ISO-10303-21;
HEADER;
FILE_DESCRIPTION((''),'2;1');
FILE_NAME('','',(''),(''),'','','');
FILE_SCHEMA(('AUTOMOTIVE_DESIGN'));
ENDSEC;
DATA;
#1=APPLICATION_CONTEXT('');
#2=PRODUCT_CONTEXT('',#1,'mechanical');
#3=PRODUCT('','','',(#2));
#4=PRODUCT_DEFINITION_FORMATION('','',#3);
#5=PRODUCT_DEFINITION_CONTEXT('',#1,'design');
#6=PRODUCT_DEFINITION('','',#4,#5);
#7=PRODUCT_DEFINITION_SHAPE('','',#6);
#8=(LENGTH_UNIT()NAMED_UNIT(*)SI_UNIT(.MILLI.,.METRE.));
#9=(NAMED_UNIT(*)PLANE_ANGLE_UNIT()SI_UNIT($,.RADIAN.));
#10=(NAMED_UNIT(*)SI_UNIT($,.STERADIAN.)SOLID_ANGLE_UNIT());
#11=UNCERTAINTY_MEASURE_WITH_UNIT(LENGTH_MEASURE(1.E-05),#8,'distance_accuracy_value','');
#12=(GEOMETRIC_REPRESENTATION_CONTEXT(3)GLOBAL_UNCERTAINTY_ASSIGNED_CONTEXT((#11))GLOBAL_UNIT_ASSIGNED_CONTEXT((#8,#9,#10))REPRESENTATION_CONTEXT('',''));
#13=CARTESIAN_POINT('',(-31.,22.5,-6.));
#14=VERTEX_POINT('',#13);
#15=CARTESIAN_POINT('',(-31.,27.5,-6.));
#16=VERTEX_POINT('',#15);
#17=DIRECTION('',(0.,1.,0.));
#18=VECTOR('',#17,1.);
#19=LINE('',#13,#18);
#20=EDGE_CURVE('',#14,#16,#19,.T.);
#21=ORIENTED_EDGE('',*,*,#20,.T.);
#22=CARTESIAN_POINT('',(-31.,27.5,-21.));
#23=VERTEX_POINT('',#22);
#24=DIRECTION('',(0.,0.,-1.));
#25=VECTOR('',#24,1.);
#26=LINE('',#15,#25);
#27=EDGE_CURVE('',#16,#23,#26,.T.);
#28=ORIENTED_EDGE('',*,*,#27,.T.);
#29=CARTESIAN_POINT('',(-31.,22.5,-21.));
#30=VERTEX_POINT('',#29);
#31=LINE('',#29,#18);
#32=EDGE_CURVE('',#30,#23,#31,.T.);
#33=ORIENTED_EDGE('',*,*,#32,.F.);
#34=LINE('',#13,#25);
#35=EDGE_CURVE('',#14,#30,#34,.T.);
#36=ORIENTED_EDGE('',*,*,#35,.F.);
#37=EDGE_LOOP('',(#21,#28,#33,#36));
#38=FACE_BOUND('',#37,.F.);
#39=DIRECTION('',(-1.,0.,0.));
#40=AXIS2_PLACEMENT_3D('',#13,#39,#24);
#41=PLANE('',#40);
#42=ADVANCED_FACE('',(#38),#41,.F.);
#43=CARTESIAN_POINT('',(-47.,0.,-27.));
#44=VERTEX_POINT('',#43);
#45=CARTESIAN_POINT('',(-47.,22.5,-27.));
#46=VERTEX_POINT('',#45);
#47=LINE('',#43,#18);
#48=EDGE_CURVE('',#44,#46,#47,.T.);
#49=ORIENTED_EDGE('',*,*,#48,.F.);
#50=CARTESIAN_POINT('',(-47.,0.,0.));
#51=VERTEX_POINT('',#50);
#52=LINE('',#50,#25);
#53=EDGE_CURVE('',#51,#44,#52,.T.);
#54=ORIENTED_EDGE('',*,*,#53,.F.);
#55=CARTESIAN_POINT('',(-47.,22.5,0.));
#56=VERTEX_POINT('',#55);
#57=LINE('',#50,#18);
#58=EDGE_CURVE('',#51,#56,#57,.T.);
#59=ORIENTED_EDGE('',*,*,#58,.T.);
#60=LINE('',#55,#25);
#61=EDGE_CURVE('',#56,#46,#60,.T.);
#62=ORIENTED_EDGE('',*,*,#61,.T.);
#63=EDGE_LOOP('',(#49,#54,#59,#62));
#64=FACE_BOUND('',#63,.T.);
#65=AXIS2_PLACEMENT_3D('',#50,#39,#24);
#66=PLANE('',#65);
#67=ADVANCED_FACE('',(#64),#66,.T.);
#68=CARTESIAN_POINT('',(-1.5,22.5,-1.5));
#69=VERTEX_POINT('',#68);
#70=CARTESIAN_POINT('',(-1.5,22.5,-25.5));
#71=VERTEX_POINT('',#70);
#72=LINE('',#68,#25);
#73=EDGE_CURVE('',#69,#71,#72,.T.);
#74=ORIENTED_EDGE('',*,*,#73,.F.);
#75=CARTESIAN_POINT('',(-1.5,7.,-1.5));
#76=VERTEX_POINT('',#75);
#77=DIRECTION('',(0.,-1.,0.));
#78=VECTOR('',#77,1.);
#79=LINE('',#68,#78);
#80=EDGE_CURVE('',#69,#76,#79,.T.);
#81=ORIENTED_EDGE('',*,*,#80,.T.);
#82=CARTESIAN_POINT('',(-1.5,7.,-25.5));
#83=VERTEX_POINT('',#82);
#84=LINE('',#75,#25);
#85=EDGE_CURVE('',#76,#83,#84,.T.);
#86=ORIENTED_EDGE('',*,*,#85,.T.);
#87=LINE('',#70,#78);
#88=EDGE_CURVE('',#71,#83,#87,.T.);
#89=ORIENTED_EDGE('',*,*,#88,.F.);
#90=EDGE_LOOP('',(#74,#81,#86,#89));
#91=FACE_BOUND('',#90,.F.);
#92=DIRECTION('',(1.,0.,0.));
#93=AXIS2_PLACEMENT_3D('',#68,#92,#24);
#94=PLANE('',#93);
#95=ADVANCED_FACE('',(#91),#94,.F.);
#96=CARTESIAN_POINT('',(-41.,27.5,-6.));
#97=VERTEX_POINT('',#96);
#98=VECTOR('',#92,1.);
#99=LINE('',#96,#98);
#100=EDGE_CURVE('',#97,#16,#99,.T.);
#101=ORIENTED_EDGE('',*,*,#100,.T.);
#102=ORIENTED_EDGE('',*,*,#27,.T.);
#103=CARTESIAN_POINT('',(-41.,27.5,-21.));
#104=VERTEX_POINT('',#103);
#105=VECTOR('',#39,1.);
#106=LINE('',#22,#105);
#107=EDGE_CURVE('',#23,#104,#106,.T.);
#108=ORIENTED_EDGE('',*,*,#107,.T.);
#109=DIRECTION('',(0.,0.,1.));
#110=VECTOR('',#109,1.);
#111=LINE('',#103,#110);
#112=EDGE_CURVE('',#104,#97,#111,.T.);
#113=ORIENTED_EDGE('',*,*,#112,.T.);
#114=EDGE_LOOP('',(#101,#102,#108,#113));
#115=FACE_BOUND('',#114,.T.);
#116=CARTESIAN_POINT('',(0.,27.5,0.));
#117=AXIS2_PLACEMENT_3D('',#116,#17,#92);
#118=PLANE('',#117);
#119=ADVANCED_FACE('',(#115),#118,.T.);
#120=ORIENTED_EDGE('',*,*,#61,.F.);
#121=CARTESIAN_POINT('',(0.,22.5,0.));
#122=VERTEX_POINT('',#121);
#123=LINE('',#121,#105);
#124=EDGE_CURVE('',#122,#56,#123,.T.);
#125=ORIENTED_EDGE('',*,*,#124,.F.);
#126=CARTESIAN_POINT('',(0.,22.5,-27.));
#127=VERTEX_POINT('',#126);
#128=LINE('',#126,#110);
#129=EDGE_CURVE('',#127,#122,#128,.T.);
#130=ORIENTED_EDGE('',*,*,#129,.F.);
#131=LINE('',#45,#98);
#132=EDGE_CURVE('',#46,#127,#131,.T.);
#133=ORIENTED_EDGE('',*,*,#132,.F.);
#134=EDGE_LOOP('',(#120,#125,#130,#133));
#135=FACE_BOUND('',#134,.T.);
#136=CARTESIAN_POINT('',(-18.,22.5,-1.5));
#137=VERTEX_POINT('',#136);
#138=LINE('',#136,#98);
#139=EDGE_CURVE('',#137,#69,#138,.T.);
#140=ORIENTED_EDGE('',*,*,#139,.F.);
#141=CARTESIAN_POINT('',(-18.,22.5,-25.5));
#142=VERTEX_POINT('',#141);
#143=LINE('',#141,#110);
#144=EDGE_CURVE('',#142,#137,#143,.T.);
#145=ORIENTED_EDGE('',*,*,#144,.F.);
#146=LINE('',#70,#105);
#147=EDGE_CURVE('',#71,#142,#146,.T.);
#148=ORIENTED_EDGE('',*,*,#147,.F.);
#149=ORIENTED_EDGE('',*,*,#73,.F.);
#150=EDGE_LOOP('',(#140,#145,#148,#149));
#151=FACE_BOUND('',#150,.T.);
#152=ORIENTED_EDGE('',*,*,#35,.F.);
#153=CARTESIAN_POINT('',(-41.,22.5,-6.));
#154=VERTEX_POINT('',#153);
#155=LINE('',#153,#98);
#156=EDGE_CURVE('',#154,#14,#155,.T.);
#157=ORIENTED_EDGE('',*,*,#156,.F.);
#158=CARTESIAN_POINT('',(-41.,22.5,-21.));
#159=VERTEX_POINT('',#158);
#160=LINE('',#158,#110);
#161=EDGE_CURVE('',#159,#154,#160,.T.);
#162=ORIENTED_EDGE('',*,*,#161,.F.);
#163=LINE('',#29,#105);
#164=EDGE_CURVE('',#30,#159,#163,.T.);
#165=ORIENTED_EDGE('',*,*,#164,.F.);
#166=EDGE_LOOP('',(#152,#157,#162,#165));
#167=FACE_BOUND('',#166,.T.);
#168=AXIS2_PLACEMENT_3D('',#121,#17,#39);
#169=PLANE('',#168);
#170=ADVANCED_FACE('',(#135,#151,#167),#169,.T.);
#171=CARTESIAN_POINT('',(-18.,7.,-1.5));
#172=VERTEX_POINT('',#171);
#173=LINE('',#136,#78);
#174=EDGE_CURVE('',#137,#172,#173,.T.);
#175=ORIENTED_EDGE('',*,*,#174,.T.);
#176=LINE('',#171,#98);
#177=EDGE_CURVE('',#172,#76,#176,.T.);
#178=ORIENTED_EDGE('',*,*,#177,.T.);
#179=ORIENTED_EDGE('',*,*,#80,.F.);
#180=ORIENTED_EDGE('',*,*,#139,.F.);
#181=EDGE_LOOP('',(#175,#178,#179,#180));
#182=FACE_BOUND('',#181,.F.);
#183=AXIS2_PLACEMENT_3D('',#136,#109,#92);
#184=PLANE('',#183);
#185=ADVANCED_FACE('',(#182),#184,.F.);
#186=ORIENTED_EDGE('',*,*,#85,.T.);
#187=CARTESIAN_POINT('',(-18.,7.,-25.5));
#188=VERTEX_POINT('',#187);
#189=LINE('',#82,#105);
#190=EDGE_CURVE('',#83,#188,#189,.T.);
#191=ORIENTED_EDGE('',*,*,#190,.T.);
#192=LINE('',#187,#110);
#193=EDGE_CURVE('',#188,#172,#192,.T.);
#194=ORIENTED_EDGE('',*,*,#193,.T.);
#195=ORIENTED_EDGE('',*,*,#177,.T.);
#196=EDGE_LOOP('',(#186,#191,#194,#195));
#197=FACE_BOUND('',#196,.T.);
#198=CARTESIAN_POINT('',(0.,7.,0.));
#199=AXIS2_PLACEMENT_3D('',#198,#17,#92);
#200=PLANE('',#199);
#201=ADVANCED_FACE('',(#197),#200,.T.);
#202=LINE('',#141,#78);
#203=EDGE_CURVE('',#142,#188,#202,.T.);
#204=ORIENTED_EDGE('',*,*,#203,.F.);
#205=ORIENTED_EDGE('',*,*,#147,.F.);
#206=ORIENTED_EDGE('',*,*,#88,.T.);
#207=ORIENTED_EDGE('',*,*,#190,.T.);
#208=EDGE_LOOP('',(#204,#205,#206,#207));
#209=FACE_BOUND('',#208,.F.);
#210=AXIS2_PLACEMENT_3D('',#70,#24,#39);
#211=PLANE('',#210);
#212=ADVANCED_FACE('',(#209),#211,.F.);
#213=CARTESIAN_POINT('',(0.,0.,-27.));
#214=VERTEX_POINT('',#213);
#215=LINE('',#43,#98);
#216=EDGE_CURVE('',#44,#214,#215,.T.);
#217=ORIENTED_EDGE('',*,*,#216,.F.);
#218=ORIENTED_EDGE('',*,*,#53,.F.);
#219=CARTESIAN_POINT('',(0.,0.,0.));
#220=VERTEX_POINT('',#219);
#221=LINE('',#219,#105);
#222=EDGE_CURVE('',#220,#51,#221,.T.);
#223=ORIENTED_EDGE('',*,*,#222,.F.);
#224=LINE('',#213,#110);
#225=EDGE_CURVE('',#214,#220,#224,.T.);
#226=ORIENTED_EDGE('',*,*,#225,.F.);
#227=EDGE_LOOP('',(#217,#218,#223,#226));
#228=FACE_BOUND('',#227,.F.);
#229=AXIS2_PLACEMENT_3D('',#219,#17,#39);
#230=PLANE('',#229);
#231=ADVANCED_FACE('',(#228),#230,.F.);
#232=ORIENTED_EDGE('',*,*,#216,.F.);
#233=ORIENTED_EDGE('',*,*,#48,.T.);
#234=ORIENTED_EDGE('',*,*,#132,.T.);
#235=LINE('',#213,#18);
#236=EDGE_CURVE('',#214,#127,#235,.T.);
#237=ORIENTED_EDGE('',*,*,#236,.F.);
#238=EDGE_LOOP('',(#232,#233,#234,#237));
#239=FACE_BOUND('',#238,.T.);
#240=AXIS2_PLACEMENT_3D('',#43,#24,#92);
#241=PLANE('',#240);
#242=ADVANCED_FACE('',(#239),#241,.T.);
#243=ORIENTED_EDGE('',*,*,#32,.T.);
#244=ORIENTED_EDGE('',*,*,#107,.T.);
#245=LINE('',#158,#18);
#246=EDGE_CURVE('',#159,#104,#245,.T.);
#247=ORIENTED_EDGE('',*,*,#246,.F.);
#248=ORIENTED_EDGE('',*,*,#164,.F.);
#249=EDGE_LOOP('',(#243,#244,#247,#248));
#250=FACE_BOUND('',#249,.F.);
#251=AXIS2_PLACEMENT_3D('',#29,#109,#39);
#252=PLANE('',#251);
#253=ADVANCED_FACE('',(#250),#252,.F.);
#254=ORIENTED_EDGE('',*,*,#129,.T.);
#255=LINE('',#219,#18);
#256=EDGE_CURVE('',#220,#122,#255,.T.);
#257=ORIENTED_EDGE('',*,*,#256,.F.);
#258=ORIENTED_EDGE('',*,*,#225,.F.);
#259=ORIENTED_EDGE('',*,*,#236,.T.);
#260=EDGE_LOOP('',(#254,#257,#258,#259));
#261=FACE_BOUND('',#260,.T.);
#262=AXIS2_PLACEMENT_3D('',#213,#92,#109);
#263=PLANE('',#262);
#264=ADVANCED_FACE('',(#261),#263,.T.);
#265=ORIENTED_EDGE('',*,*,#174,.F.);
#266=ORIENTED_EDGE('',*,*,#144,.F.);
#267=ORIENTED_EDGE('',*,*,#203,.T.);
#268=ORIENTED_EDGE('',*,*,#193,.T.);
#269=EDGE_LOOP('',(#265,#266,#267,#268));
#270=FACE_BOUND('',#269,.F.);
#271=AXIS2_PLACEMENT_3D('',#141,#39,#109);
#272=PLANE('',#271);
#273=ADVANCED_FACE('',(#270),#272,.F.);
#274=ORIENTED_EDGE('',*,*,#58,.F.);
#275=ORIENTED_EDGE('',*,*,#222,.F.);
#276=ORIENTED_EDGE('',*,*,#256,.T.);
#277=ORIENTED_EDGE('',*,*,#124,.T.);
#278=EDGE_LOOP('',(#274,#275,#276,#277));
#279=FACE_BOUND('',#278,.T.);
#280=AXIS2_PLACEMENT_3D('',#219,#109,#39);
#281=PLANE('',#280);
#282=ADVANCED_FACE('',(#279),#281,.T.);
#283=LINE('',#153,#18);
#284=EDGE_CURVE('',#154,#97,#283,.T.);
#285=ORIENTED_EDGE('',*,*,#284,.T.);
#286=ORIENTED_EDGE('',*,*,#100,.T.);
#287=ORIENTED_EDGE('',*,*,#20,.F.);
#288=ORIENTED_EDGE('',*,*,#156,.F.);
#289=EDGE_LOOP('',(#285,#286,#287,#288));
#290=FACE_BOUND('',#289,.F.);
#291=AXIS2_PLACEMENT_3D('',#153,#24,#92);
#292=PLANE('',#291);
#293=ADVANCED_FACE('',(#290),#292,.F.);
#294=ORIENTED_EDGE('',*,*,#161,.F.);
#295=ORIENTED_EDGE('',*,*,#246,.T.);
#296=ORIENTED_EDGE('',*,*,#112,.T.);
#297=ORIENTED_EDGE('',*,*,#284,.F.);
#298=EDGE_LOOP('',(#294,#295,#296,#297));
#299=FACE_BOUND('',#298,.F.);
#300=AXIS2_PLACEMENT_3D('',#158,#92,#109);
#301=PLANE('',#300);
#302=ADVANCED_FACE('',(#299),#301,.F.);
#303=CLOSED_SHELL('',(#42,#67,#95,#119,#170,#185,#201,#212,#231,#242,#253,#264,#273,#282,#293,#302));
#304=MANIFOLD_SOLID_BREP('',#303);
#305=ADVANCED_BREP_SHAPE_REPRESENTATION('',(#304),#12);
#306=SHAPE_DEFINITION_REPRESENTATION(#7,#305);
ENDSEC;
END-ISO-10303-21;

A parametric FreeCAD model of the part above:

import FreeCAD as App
import Part
import Sketcher

doc = App.newDocument("Part")
body = doc.addObject("PartDesign::Body", "Body")

sketch1 = body.newObject("Sketcher::SketchObject", "Sketch")
sketch1.AttachmentSupport = (doc.getObject("XZ_Plane"), [""])
sketch1.MapMode = "FlatFace"
sketch1.addGeometry(Part.LineSegment(App.Vector(-47, 0, 0), App.Vector(0, 0, 0)), False)
sketch1.addGeometry(Part.LineSegment(App.Vector(0, 0, 0), App.Vector(0, -27, 0)), False)
sketch1.addGeometry(Part.LineSegment(App.Vector(0, -27, 0), App.Vector(-47, -27, 0)), False)
sketch1.addGeometry(Part.LineSegment(App.Vector(-47, -27, 0), App.Vector(-47, 0, 0)), False)
sketch1.addConstraint(Sketcher.Constraint("Coincident", 0, 2, 1, 1))
sketch1.addConstraint(Sketcher.Constraint("Coincident", 1, 2, 2, 1))
sketch1.addConstraint(Sketcher.Constraint("Coincident", 2, 2, 3, 1))
sketch1.addConstraint(Sketcher.Constraint("Coincident", 3, 2, 0, 1))
sketch1.addConstraint(Sketcher.Constraint("Horizontal", 0))
sketch1.addConstraint(Sketcher.Constraint("Vertical", 1))
sketch1.addConstraint(Sketcher.Constraint("Horizontal", 2))
sketch1.addConstraint(Sketcher.Constraint("Vertical", 3))
sketch1.addConstraint(Sketcher.Constraint("Coincident", 0, 2, -1, 1))
sketch1.addConstraint(Sketcher.Constraint("DistanceX", 0, 1, 0, 2, 47.0))
sketch1.addConstraint(Sketcher.Constraint("DistanceY", 1, 2, 1, 1, 27.0))
pad1 = body.newObject("PartDesign::Pad", "Pad")
pad1.Profile = sketch1
pad1.Length = 22.5
pad1.Reversed = True

sketch2 = body.newObject("Sketcher::SketchObject", "Sketch001")
sketch2.AttachmentSupport = (doc.getObject("XZ_Plane"), [""])
sketch2.MapMode = "FlatFace"
sketch2.AttachmentOffset = App.Placement(App.Vector(0, 0, -22.5), App.Rotation())
sketch2.addGeometry(Part.LineSegment(App.Vector(-18, -26, 0), App.Vector(-18, -2, 0)), False)
sketch2.addGeometry(Part.LineSegment(App.Vector(-18, -2, 0), App.Vector(-2, -2, 0)), False)
sketch2.addGeometry(Part.LineSegment(App.Vector(-2, -2, 0), App.Vector(-2, -26, 0)), False)
sketch2.addGeometry(Part.LineSegment(App.Vector(-2, -26, 0), App.Vector(-18, -26, 0)), False)
sketch2.addConstraint(Sketcher.Constraint("Coincident", 0, 2, 1, 1))
sketch2.addConstraint(Sketcher.Constraint("Coincident", 1, 2, 2, 1))
sketch2.addConstraint(Sketcher.Constraint("Coincident", 2, 2, 3, 1))
sketch2.addConstraint(Sketcher.Constraint("Coincident", 3, 2, 0, 1))
sketch2.addConstraint(Sketcher.Constraint("Vertical", 0))
sketch2.addConstraint(Sketcher.Constraint("Horizontal", 1))
sketch2.addConstraint(Sketcher.Constraint("Vertical", 2))
sketch2.addConstraint(Sketcher.Constraint("Horizontal", 3))
sketch2.addConstraint(Sketcher.Constraint("DistanceY", 0, 1, 0, 2, 24.0))
sketch2.addConstraint(Sketcher.Constraint("DistanceX", 1, 1, 1, 2, 16.5))
sketch2.addConstraint(Sketcher.Constraint("DistanceY", 0, 2, -1, 1, 1.5))
sketch2.addConstraint(Sketcher.Constraint("DistanceX", 1, 2, -1, 1, 1.5))
pocket1 = body.newObject("PartDesign::Pocket", "Pocket")
pocket1.Profile = sketch2
pocket1.Length = 15.5
pocket1.Reversed = True

sketch3 = body.newObject("Sketcher::SketchObject", "Sketch002")
sketch3.AttachmentSupport = (doc.getObject("XZ_Plane"), [""])
sketch3.MapMode = "FlatFace"
sketch3.AttachmentOffset = App.Placement(App.Vector(0, 0, -22.5), App.Rotation())
sketch3.addGeometry(Part.LineSegment(App.Vector(-41, -21, 0), App.Vector(-41, -6, 0)), False)
sketch3.addGeometry(Part.LineSegment(App.Vector(-41, -6, 0), App.Vector(-31, -6, 0)), False)
sketch3.addGeometry(Part.LineSegment(App.Vector(-31, -6, 0), App.Vector(-31, -21, 0)), False)
sketch3.addGeometry(Part.LineSegment(App.Vector(-31, -21, 0), App.Vector(-41, -21, 0)), False)
sketch3.addConstraint(Sketcher.Constraint("Coincident", 0, 2, 1, 1))
sketch3.addConstraint(Sketcher.Constraint("Coincident", 1, 2, 2, 1))
sketch3.addConstraint(Sketcher.Constraint("Coincident", 2, 2, 3, 1))
sketch3.addConstraint(Sketcher.Constraint("Coincident", 3, 2, 0, 1))
sketch3.addConstraint(Sketcher.Constraint("Vertical", 0))
sketch3.addConstraint(Sketcher.Constraint("Horizontal", 1))
sketch3.addConstraint(Sketcher.Constraint("Vertical", 2))
sketch3.addConstraint(Sketcher.Constraint("Horizontal", 3))
sketch3.addConstraint(Sketcher.Constraint("DistanceX", 1, 1, 1, 2, 10.0))
sketch3.addConstraint(Sketcher.Constraint("DistanceY", 0, 1, 0, 2, 15.0))
sketch3.addConstraint(Sketcher.Constraint("DistanceY", 0, 2, -1, 1, 6.0))
sketch3.addConstraint(Sketcher.Constraint("DistanceX", 0, 2, -1, 1, 41.0))
pad2 = body.newObject("PartDesign::Pad", "Pad001")
pad2.Profile = sketch3
pad2.Length = 5
pad2.Reversed = True

doc.recompute()
